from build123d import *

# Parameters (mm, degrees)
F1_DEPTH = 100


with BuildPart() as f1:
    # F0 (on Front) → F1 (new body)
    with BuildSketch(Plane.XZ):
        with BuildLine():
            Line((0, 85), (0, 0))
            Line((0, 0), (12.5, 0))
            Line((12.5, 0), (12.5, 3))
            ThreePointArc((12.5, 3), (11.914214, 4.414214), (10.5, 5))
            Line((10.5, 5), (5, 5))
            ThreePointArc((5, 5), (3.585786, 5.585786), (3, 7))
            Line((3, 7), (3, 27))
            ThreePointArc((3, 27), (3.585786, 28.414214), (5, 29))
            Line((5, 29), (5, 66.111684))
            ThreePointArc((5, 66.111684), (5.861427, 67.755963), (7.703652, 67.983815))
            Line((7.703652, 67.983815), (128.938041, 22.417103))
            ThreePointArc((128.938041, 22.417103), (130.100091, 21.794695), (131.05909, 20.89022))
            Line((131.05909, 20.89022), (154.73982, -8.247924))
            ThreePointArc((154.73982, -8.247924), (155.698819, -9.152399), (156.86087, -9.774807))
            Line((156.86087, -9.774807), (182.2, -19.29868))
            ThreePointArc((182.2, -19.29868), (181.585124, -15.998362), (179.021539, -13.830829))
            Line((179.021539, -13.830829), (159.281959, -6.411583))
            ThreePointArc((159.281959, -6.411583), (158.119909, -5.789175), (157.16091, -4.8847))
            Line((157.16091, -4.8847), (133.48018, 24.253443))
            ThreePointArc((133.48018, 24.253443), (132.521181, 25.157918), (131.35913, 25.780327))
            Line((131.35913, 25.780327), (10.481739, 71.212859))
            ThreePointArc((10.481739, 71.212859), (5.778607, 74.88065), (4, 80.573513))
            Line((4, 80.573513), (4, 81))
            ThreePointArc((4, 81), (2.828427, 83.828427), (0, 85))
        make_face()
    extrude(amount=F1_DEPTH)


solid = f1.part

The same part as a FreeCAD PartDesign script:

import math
import FreeCAD as App
import Part
import Sketcher
from FreeCAD import Vector
Q = App.Units.Quantity

doc = App.newDocument("Part")
params = doc.addObject("Spreadsheet::Sheet", "Params")
for row, (alias, value) in enumerate([
    ("sketch1_radius", "1.999999 mm"),
    ("sketch1_radius2", "1.999999 mm"),
    ("sketch1_radius3", "1.999999 mm"),
    ("sketch1_radius4", "2 mm"),
    ("sketch1_radius5", "4.999998 mm"),
    ("pad1_length", "100 mm"),
], start=1):
    params.set(f"A{row}", alias)
    params.set(f"B{row}", "=" + value)
    params.setAlias(f"B{row}", alias)

body = doc.addObject("PartDesign::Body", "Body")

sketch1 = doc.addObject("Sketcher::SketchObject", "Sketch")
body.addObject(sketch1)
sketch1.AttachmentSupport = (doc.XZ_Plane, [""])
sketch1.MapMode = "FlatFace"
sketch1.addGeometry([
    Part.LineSegment(Vector(0, 85, 0), Vector(0, 0, 0)),
    Part.LineSegment(Vector(0, 0, 0), Vector(12.5, 0, 0)),
    Part.LineSegment(Vector(12.5, 0, 0), Vector(12.5, 3, 0)),
    Part.ArcOfCircle(Part.Circle(Vector(10.500001, 3.000001, 0), Vector(0, 0, 1), 1.999999), math.radians(-0.000043), math.radians(90.000043)),
    Part.LineSegment(Vector(10.5, 5, 0), Vector(5, 5, 0)),
    Part.ArcOfCircle(Part.Circle(Vector(4.999999, 6.999999, 0), Vector(0, 0, 1), 1.999999), math.radians(179.999957), math.radians(270.000043)),
    Part.LineSegment(Vector(3, 7, 0), Vector(3, 27, 0)),
    Part.ArcOfCircle(Part.Circle(Vector(4.999999, 27.000001, 0), Vector(0, 0, 1), 1.999999), math.radians(89.999957), math.radians(180.000043)),
    Part.LineSegment(Vector(5, 29, 0), Vector(5, 66.111684, 0)),
    Part.ArcOfCircle(Part.Circle(Vector(7, 66.111685, 0), Vector(0, 0, 1), 2), math.radians(69.400939), math.radians(180.000023)),
    Part.LineSegment(Vector(7.703652, 67.983815, 0), Vector(128.938041, 22.417103, 0)),
    Part.ArcOfCircle(Part.Circle(Vector(127.178912, 17.736777, 0), Vector(0, 0, 1), 4.999998), math.radians(39.100954), math.radians(69.40096)),
    Part.LineSegment(Vector(131.05909, 20.89022, 0), Vector(154.73982, -8.247924, 0)),
    Part.ArcOfCircle(Part.Circle(Vector(158.619995, -5.094485, 0), Vector(0, 0, 1), 4.999993), math.radians(-140.899054), math.radians(-110.599007)),
    Part.LineSegment(Vector(156.86087, -9.774807, 0), Vector(182.2, -19.29868, 0)),
    Part.ArcOfCircle(Part.Circle(Vector(177.262409, -18.511156, 0), Vector(0, 0, 1), 5), math.radians(-9.062095), math.radians(69.400956)),
    Part.LineSegment(Vector(179.021539, -13.830829, 0), Vector(159.281959, -6.411583, 0)),
    Part.ArcOfCircle(Part.Circle(Vector(161.041088, -1.731257, 0), Vector(0, 0, 1), 4.999998), math.radians(-140.899046), math.radians(-110.59904)),
    Part.LineSegment(Vector(157.16091, -4.8847, 0), Vector(133.48018, 24.253443, 0)),
    Part.ArcOfCircle(Part.Circle(Vector(129.599996, 21.099994, 0), Vector(0, 0, 1), 5.000007), math.radians(39.100967), math.radians(69.400937)),
    Part.LineSegment(Vector(131.35913, 25.780327, 0), Vector(10.481739, 71.212859, 0)),
    Part.ArcOfCircle(Part.Circle(Vector(14.000002, 80.573514, 0), Vector(0, 0, 1), 10.000002), math.radians(-179.999992), math.radians(-110.599058)),
    Part.LineSegment(Vector(4, 80.573513, 0), Vector(4, 81, 0)),
    Part.ArcOfCircle(Part.Circle(Vector(0, 81, 0), Vector(0, 0, 1), 4), math.radians(0.000006), math.radians(89.999994)),
], False)
sketch1.addConstraint([
    Sketcher.Constraint("Coincident", 0, 2, 1, 1),
    Sketcher.Constraint("Coincident", 1, 2, 2, 1),
    Sketcher.Constraint("Coincident", 2, 2, 3, 1),
    Sketcher.Constraint("Coincident", 3, 2, 4, 1),
    Sketcher.Constraint("Coincident", 4, 2, 5, 2),
    Sketcher.Constraint("Coincident", 5, 1, 6, 1),
    Sketcher.Constraint("Coincident", 6, 2, 7, 2),
    Sketcher.Constraint("Coincident", 7, 1, 8, 1),
    Sketcher.Constraint("Coincident", 8, 2, 9, 2),
    Sketcher.Constraint("Coincident", 9, 1, 10, 1),
    Sketcher.Constraint("Coincident", 10, 2, 11, 2),
    Sketcher.Constraint("Coincident", 11, 1, 12, 1),
    Sketcher.Constraint("Coincident", 12, 2, 13, 1),
    Sketcher.Constraint("Coincident", 13, 2, 14, 1),
    Sketcher.Constraint("Coincident", 14, 2, 15, 1),
    Sketcher.Constraint("Coincident", 15, 2, 16, 1),
    Sketcher.Constraint("Coincident", 16, 2, 17, 2),
    Sketcher.Constraint("Coincident", 17, 1, 18, 1),
    Sketcher.Constraint("Coincident", 18, 2, 19, 1),
    Sketcher.Constraint("Coincident", 19, 2, 20, 1),
    Sketcher.Constraint("Coincident", 20, 2, 21, 2),
    Sketcher.Constraint("Coincident", 21, 1, 22, 1),
    Sketcher.Constraint("Coincident", 22, 2, 23, 1),
    Sketcher.Constraint("Coincident", 23, 2, 0, 1),
    Sketcher.Constraint("Vertical", 0),
    Sketcher.Constraint("Horizontal", 1),
    Sketcher.Constraint("Vertical", 2),
    Sketcher.Constraint("Horizontal", 4),
    Sketcher.Constraint("Vertical", 6),
    Sketcher.Constraint("Vertical", 8),
    Sketcher.Constraint("Vertical", 22),
    Sketcher.Constraint("Coincident", 0, 2, -1, 1),
    Sketcher.Constraint("PointOnObject", 23, 3, -2),
    Sketcher.Constraint("Radius", 3, Q("1.999999 mm")),
    Sketcher.Constraint("Radius", 5, Q("1.999999 mm")),
    Sketcher.Constraint("Radius", 7, Q("1.999999 mm")),
    Sketcher.Constraint("Radius", 9, Q("2 mm")),
    Sketcher.Constraint("Radius", 11, Q("4.999998 mm")),
    Sketcher.Constraint("Radius", 15, Q("5 mm")),
    Sketcher.Constraint("Radius", 17, Q("4.999998 mm")),
    Sketcher.Constraint("Radius", 23, Q("4 mm")),
    Sketcher.Constraint("DistanceY", 0, 2, 0, 1, Q("85 mm")),
    Sketcher.Constraint("DistanceY", 2, 1, 2, 2, Q("3 mm")),
    Sketcher.Constraint("DistanceY", 6, 1, 6, 2, Q("20 mm")),
    Sketcher.Constraint("DistanceX", 1, 1, 1, 2, Q("12.5 mm")),
    Sketcher.Constraint("DistanceX", 4, 2, 4, 1, Q("5.5 mm")),
    Sketcher.Constraint("DistanceY", -1, 1, 3, 3, Q("3.000001 mm")),
    Sketcher.Constraint("DistanceX", -1, 1, 5, 3, Q("4.999999 mm")),
    Sketcher.Constraint("DistanceY", -1, 1, 7, 3, Q("27.000001 mm")),
    Sketcher.Constraint("DistanceX", -1, 1, 9, 3, Q("7 mm")),
    Sketcher.Constraint("DistanceX", -1, 1, 4, 2, Q("5 mm")),
    Sketcher.Constraint("DistanceY", -1, 1, 5, 1, Q("7 mm")),
    Sketcher.Constraint("DistanceY", -1, 1, 22, 2, Q("81 mm")),
    Sketcher.Constraint("DistanceX", -1, 1, 14, 2, Q("182.2 mm")),
    Sketcher.Constraint("DistanceX", 3, 3, 21, 3, Q("3.500001 mm")),
    Sketcher.Constraint("DistanceX", 19, 3, 13, 3, Q("29.019999 mm")),
    Sketcher.Constraint("Radius", 13, Q("4.999993 mm")),
    Sketcher.Constraint("Radius", 19, Q("5.000007 mm")),
    Sketcher.Constraint("DistanceX", 11, 1, 17, 3, Q("29.981998 mm")),
    Sketcher.Constraint("DistanceY", 17, 1, -1, 1, Q("4.8847 mm")),
    Sketcher.Constraint("DistanceY", 15, 3, 17, 3, Q("16.779899 mm")),
    Sketcher.Constraint("DistanceY", 9, 1, 21, 3, Q("12.589699 mm")),
    Sketcher.Constraint("DistanceY", 12, 2, 11, 3, Q("25.984701 mm")),
    Sketcher.Constraint("Distance", 14, Q("27.069829 mm")),
    Sketcher.Constraint("Distance", 16, Q("21.087822 mm")),
    Sketcher.Constraint("Distance", 20, Q("129.133491 mm")),
    Sketcher.Constraint("DistanceY", 8, 1, 8, 2, Q("37.111684 mm")),
    Sketcher.Constraint("DistanceY", 22, 1, 22, 2, Q("0.426487 mm")),
    Sketcher.Constraint("DistanceX", -1, 1, 11, 3, Q("127.178912 mm")),
    Sketcher.Constraint("DistanceX", -1, 1, 15, 3, Q("177.262409 mm")),
    Sketcher.Constraint("DistanceX", -1, 1, 17, 3, Q("161.041088 mm")),
    Sketcher.Constraint("DistanceX", -1, 1, 10, 2, Q("128.938041 mm")),
    Sketcher.Constraint("DistanceY", -1, 1, 11, 1, Q("20.89022 mm")),
    Sketcher.Constraint("DistanceX", -1, 1, 12, 2, Q("154.73982 mm")),
    Sketcher.Constraint("DistanceX", -1, 1, 13, 2, Q("156.86087 mm")),
    Sketcher.Constraint("DistanceY", 14, 2, -1, 1, Q("19.29868 mm")),
    Sketcher.Constraint("DistanceX", -1, 1, 15, 2, Q("179.021539 mm")),
    Sketcher.Constraint("DistanceX", -1, 1, 18, 2, Q("133.48018 mm")),
    Sketcher.Constraint("DistanceX", -1, 1, 19, 2, Q("131.35913 mm")),
    Sketcher.Constraint("DistanceX", -1, 1, 20, 2, Q("10.481739 mm")),
    Sketcher.Constraint("DistanceY", -1, 1, 20, 2, Q("71.212859 mm")),
    Sketcher.Constraint("DistanceY", 13, 3, 9, 3, Q("71.20617 mm")),
])
sketch1.setExpression("Constraints[33]", "Params.sketch1_radius")
sketch1.setExpression("Constraints[34]", "Params.sketch1_radius2")
sketch1.setExpression("Constraints[35]", "Params.sketch1_radius3")
sketch1.setExpression("Constraints[36]", "Params.sketch1_radius4")
sketch1.setExpression("Constraints[37]", "Params.sketch1_radius5")
pad1 = doc.addObject("PartDesign::Pad", "Pad")
body.addObject(pad1)
pad1.Profile = sketch1
pad1.setExpression("Length", "Params.pad1_length")

doc.recompute()
